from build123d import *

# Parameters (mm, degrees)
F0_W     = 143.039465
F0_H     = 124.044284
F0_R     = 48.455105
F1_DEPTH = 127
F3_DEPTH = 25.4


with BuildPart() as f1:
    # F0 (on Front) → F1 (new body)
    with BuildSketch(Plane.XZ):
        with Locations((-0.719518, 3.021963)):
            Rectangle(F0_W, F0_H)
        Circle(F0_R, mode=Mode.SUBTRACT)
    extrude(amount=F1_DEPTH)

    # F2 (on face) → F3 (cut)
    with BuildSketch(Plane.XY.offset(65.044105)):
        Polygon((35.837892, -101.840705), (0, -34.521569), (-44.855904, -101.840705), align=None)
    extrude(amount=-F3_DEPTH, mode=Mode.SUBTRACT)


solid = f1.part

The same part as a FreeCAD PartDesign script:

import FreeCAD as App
import Part
import Sketcher
from FreeCAD import Vector
Q = App.Units.Quantity


def add_polygon(sketch, points):
    """Adds a closed chain of lines whose ends are joined by coincident constraints."""
    first, n = sketch.GeometryCount, len(points)
    for a, b in zip(points, points[1:] + points[:1]):
        sketch.addGeometry(Part.LineSegment(App.Vector(*a, 0), App.Vector(*b, 0)), False)
    for i in range(n):
        sketch.addConstraint(Sketcher.Constraint("Coincident", first + i, 2, first + (i + 1) % n, 1))

doc = App.newDocument("Part")
body = doc.addObject("PartDesign::Body", "Body")

# Sketch on XZ plane
sketch1 = doc.addObject("Sketcher::SketchObject", "Sketch")
body.addObject(sketch1)
sketch1.AttachmentSupport = (doc.XZ_Plane, [""])
sketch1.MapMode = "FlatFace"
add_polygon(sketch1, [(-72, 65), (-72, -59), (71, -59), (71, 65)])  # lines 0-3
sketch1.addGeometry(Part.Circle(Vector(0, 0, 0), Vector(0, 0, 1), 48), False)  # 4
sketch1.addConstraint([
    Sketcher.Constraint("Vertical", 0),
    Sketcher.Constraint("Horizontal", 1),
    Sketcher.Constraint("Vertical", 2),
    Sketcher.Constraint("Horizontal", 3),
    Sketcher.Constraint("Coincident", 4, 3, -1, 1),
    Sketcher.Constraint("Diameter", 4, Q("96.91021 mm")),
    Sketcher.Constraint("DistanceX", 1, 1, 1, 2, Q("143.039465 mm")),
    Sketcher.Constraint("DistanceY", 0, 2, 0, 1, Q("124.044284 mm")),
    Sketcher.Constraint("DistanceX", 0, 2, -1, 1, Q("72.23925 mm")),
    Sketcher.Constraint("DistanceY", 0, 2, -1, 1, Q("59.000179 mm")),
])
pad1 = doc.addObject("PartDesign::Pad", "Pad")
body.addObject(pad1)
pad1.Profile = sketch1
pad1.Length = Q("5 in")

# Sketch on XY plane
sketch2 = doc.addObject("Sketcher::SketchObject", "Sketch001")
body.addObject(sketch2)
sketch2.AttachmentSupport = (doc.XY_Plane, [""])
sketch2.MapMode = "FlatFace"
sketch2.AttachmentOffset = App.Placement(Vector(0, 0, 65.044105), App.Rotation())
add_polygon(sketch2, [(36, -102), (0, -35), (-45, -102)])  # lines 0-2
sketch2.addConstraint([
    Sketcher.Constraint("Horizontal", 2),
    Sketcher.Constraint("PointOnObject", 0, 2, -2),
    Sketcher.Constraint("Distance", 0, Q("76.26415 mm")),
    Sketcher.Constraint("Distance", 1, Q("80.894488 mm")),
    Sketcher.Constraint("DistanceX", 2, 1, 2, 2, Q("80.693796 mm")),
    Sketcher.Constraint("DistanceY", 0, 2, -1, 1, Q("34.521569 mm")),
])
pocket1 = doc.addObject("PartDesign::Pocket", "Pocket")
body.addObject(pocket1)
pocket1.Profile = sketch2
pocket1.Length = Q("1 in")

doc.recompute()
